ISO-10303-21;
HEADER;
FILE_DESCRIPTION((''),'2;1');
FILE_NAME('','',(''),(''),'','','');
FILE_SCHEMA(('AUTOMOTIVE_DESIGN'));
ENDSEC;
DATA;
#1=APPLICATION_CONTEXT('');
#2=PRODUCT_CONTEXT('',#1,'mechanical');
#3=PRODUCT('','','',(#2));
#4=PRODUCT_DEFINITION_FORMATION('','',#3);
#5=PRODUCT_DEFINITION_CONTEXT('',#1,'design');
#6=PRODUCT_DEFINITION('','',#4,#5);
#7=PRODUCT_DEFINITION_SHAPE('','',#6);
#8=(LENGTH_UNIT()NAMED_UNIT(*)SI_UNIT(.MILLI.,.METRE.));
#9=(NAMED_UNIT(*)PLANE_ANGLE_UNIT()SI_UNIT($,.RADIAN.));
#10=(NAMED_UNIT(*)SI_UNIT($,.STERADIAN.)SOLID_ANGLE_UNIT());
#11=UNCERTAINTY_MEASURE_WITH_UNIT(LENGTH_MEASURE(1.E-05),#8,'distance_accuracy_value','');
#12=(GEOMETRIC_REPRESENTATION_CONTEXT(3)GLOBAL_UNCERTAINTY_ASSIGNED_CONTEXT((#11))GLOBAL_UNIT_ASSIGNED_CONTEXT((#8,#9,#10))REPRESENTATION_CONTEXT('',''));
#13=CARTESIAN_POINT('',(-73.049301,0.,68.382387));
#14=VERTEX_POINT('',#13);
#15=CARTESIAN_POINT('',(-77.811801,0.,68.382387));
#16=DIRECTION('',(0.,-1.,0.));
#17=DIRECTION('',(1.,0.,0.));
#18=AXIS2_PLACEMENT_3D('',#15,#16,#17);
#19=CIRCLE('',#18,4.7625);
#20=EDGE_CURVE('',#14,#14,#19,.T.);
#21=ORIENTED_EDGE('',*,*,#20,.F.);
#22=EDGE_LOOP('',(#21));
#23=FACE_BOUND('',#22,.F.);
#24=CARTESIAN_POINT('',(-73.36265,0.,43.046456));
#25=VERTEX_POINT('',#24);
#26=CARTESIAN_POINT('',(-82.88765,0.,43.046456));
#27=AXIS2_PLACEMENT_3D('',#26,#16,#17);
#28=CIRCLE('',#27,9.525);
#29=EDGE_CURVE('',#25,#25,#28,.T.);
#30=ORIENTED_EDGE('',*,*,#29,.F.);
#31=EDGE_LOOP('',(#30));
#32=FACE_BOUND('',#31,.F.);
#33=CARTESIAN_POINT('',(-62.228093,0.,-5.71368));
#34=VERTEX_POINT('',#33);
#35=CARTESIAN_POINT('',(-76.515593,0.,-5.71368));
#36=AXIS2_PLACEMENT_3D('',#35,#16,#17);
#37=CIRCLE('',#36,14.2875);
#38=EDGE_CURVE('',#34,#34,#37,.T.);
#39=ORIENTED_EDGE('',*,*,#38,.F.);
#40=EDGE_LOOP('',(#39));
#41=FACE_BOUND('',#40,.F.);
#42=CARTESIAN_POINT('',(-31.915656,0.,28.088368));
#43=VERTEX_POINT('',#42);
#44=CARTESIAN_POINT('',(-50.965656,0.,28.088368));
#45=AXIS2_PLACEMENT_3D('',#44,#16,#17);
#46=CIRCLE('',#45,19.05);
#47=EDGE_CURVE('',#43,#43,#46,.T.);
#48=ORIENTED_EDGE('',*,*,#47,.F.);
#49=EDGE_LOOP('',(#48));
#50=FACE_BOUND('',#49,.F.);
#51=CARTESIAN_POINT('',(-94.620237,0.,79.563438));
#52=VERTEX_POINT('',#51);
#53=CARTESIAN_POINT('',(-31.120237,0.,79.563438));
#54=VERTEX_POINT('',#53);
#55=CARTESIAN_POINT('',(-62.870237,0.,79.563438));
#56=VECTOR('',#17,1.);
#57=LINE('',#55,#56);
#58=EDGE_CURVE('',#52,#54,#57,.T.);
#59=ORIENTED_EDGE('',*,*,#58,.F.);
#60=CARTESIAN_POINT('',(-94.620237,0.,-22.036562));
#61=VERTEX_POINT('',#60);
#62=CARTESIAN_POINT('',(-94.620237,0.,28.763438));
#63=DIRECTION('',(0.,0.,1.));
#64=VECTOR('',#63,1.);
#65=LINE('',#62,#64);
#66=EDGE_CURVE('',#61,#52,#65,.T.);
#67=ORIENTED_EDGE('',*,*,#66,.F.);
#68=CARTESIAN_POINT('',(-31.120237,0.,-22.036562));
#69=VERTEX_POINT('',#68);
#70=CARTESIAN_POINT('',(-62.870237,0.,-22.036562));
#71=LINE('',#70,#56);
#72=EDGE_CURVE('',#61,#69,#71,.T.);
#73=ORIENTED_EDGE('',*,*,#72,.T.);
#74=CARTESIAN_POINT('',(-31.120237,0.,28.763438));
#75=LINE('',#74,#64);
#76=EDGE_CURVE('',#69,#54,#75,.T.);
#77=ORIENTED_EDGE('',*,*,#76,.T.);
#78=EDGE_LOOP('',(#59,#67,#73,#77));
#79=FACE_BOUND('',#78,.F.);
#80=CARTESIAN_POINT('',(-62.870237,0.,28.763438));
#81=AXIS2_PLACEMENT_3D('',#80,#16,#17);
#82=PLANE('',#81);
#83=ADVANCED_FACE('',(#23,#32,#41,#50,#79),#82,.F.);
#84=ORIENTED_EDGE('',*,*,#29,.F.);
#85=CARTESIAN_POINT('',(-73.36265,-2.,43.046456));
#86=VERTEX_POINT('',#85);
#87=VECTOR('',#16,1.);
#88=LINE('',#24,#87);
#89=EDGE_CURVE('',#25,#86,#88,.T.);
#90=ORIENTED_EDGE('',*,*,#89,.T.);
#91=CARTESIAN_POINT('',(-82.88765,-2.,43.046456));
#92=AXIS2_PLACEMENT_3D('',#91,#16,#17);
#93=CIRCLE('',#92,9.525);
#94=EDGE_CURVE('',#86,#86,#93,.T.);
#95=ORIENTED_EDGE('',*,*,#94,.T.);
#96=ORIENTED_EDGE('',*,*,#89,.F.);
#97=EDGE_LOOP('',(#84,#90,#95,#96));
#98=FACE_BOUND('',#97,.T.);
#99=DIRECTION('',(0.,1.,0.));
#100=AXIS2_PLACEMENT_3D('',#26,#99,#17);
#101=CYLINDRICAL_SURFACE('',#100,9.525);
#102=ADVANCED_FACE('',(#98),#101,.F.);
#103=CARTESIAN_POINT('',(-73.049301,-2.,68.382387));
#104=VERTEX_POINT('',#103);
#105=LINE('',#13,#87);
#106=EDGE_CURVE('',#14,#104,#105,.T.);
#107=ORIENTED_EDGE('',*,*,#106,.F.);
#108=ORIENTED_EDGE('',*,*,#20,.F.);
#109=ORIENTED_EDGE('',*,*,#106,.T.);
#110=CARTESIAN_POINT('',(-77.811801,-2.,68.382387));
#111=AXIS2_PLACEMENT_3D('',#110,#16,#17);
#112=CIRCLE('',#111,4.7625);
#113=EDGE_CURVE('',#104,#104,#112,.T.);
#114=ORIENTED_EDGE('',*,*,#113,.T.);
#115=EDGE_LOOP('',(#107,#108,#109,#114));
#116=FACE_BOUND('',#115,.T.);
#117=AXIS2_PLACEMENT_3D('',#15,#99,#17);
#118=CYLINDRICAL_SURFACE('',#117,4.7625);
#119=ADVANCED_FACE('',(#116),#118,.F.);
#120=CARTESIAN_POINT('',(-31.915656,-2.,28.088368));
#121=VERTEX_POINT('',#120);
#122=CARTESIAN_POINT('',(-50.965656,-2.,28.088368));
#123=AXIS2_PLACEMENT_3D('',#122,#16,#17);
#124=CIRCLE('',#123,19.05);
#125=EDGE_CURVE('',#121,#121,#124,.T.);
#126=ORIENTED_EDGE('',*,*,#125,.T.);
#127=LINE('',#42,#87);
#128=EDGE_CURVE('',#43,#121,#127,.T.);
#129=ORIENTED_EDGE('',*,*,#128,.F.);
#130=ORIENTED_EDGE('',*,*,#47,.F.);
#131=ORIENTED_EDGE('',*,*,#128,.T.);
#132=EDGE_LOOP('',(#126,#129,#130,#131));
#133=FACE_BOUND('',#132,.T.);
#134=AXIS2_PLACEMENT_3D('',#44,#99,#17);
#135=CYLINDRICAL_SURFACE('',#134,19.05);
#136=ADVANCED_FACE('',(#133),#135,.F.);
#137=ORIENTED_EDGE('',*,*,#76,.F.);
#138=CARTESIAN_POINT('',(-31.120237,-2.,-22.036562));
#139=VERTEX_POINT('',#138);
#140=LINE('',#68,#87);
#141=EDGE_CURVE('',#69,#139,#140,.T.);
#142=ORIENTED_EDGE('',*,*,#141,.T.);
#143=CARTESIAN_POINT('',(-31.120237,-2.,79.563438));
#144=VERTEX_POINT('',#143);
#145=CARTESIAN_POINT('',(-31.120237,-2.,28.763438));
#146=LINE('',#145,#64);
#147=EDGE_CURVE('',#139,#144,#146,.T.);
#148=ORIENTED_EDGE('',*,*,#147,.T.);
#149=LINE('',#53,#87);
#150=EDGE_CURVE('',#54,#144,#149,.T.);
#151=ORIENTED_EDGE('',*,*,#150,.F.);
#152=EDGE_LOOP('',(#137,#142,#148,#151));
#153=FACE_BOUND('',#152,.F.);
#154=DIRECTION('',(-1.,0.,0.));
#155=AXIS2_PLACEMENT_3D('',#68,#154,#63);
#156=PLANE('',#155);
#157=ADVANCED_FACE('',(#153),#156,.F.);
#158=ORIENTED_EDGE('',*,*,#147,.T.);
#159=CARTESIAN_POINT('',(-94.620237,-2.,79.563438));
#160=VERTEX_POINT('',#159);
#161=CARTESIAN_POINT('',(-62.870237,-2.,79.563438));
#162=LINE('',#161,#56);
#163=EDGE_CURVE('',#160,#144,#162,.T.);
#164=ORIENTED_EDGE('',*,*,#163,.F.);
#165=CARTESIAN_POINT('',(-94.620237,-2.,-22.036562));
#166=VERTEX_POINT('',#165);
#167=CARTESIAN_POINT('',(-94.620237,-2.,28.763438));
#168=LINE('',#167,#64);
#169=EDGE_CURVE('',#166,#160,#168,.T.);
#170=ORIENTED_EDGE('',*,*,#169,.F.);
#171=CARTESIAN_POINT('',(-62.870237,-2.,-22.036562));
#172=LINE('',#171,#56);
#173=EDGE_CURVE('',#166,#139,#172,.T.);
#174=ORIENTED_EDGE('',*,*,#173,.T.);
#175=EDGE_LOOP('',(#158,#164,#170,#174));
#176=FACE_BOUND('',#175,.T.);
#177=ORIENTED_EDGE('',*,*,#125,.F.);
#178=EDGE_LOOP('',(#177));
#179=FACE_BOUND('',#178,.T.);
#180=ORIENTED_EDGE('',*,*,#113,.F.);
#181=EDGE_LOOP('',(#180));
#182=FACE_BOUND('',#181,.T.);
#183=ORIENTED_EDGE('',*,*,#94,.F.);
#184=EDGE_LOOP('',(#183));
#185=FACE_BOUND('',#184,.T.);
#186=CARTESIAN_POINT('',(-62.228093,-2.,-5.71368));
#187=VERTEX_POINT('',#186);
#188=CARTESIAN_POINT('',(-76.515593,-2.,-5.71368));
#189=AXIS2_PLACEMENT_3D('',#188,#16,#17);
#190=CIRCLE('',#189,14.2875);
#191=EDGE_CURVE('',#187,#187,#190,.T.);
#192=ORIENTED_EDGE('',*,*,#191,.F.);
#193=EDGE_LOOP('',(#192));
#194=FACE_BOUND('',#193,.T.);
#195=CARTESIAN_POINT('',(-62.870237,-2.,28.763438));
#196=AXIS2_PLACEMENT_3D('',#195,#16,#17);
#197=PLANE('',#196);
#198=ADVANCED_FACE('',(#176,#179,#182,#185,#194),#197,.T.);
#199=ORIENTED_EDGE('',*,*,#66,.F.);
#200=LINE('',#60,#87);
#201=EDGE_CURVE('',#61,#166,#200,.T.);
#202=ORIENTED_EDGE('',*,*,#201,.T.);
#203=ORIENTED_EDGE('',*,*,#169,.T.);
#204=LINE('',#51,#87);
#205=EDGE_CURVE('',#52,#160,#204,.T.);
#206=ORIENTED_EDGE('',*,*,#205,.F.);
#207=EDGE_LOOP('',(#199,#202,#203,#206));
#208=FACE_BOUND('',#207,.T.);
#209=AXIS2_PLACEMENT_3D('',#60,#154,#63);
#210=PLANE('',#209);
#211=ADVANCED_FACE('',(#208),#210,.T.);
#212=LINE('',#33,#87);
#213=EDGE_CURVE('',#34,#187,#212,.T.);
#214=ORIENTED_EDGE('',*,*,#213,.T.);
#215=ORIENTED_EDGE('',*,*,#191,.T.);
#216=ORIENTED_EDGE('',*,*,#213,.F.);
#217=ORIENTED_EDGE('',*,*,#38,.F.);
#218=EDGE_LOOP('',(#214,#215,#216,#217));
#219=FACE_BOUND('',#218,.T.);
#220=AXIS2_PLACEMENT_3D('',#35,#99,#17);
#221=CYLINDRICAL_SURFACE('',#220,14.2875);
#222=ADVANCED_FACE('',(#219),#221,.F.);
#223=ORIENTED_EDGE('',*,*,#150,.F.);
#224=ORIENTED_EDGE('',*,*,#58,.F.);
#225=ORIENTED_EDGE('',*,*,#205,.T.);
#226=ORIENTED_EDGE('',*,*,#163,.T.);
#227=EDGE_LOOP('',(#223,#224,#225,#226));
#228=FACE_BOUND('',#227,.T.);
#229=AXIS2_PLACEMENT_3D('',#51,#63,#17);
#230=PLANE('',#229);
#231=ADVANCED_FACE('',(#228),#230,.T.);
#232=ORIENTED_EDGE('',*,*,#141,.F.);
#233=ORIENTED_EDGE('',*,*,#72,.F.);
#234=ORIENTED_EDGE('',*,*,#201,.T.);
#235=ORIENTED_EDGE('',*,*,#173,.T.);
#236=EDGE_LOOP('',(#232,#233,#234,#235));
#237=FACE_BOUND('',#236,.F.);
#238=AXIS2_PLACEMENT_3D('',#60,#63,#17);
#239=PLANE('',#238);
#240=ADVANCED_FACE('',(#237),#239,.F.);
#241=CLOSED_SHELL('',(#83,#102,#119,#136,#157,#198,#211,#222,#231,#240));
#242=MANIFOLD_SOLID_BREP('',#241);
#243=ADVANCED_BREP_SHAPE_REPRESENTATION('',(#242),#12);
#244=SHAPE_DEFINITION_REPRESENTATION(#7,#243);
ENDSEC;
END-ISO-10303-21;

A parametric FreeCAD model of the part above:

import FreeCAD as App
import Part
import Sketcher
Q = App.Units.Quantity


def add_polygon(sketch, points):
    """Adds a closed chain of lines whose ends are joined by coincident constraints."""
    first, n = sketch.GeometryCount, len(points)
    for a, b in zip(points, points[1:] + points[:1]):
        sketch.addGeometry(Part.LineSegment(App.Vector(*a, 0), App.Vector(*b, 0)), False)
    for i in range(n):
        sketch.addConstraint(Sketcher.Constraint("Coincident", first + i, 2, first + (i + 1) % n, 1))

doc = App.newDocument("Part")
body = doc.addObject("PartDesign::Body", "Body")

# Sketch on XZ plane
sketch1 = body.newObject("Sketcher::SketchObject", "Sketch")
sketch1.AttachmentSupport = (doc.getObject("XZ_Plane"), [""])
sketch1.MapMode = "FlatFace"
add_polygon(sketch1, [(-94.620237, 79.563438), (-94.620237, -22.036562), (-31.120237, -22.036562), (-31.120237, 79.563438)])  # lines 0-3
sketch1.addGeometry(Part.Circle(App.Vector(-76.515593, -5.71368, 0), App.Vector(0, 0, 1), 14.2875), False)  # 4
sketch1.addGeometry(Part.Circle(App.Vector(-82.88765, 43.046456, 0), App.Vector(0, 0, 1), 9.525), False)  # 5
sketch1.addGeometry(Part.Circle(App.Vector(-77.811801, 68.382387, 0), App.Vector(0, 0, 1), 4.7625), False)  # 6
sketch1.addGeometry(Part.Circle(App.Vector(-50.965656, 28.088368, 0), App.Vector(0, 0, 1), 19.05), False)  # 7
sketch1.addConstraint([
    Sketcher.Constraint("Vertical", 0),
    Sketcher.Constraint("Horizontal", 1),
    Sketcher.Constraint("Vertical", 2),
    Sketcher.Constraint("Horizontal", 3),
    Sketcher.Constraint("Diameter", 7, Q("1.5 in")),
    Sketcher.Constraint("Diameter", 5, Q("0.75 in")),
    Sketcher.Constraint("DistanceY", 0, 2, 0, 1, Q("4 in")),
    Sketcher.Constraint("Diameter", 4, Q("1.125 in")),
    Sketcher.Constraint("Diameter", 6, Q("0.375 in")),
    Sketcher.Constraint("DistanceX", 1, 1, 1, 2, Q("2.5 in")),
    Sketcher.Constraint("DistanceX", 6, 3, -1, 1, 77.811801),
    Sketcher.Constraint("DistanceY", 4, 3, -1, 1, 5.71368),
    Sketcher.Constraint("DistanceX", 5, 3, -1, 1, 82.88765),
    Sketcher.Constraint("DistanceY", 0, 2, -1, 1, 22.036562),
    Sketcher.Constraint("DistanceY", 5, 3, 6, 3, 25.335931),
    Sketcher.Constraint("DistanceX", 6, 3, 4, 3, 1.296208),
    Sketcher.Constraint("DistanceY", 7, 3, 6, 3, 40.294019),
    Sketcher.Constraint("DistanceX", 0, 2, 7, 3, 43.654581),
    Sketcher.Constraint("DistanceY", 0, 2, 7, 3, 50.12493),
    Sketcher.Constraint("DistanceX", 7, 3, -1, 1, 50.965656),
])
pad1 = body.newObject("PartDesign::Pad", "Pad")
pad1.Profile = sketch1
pad1.Length = 2

doc.recompute()
